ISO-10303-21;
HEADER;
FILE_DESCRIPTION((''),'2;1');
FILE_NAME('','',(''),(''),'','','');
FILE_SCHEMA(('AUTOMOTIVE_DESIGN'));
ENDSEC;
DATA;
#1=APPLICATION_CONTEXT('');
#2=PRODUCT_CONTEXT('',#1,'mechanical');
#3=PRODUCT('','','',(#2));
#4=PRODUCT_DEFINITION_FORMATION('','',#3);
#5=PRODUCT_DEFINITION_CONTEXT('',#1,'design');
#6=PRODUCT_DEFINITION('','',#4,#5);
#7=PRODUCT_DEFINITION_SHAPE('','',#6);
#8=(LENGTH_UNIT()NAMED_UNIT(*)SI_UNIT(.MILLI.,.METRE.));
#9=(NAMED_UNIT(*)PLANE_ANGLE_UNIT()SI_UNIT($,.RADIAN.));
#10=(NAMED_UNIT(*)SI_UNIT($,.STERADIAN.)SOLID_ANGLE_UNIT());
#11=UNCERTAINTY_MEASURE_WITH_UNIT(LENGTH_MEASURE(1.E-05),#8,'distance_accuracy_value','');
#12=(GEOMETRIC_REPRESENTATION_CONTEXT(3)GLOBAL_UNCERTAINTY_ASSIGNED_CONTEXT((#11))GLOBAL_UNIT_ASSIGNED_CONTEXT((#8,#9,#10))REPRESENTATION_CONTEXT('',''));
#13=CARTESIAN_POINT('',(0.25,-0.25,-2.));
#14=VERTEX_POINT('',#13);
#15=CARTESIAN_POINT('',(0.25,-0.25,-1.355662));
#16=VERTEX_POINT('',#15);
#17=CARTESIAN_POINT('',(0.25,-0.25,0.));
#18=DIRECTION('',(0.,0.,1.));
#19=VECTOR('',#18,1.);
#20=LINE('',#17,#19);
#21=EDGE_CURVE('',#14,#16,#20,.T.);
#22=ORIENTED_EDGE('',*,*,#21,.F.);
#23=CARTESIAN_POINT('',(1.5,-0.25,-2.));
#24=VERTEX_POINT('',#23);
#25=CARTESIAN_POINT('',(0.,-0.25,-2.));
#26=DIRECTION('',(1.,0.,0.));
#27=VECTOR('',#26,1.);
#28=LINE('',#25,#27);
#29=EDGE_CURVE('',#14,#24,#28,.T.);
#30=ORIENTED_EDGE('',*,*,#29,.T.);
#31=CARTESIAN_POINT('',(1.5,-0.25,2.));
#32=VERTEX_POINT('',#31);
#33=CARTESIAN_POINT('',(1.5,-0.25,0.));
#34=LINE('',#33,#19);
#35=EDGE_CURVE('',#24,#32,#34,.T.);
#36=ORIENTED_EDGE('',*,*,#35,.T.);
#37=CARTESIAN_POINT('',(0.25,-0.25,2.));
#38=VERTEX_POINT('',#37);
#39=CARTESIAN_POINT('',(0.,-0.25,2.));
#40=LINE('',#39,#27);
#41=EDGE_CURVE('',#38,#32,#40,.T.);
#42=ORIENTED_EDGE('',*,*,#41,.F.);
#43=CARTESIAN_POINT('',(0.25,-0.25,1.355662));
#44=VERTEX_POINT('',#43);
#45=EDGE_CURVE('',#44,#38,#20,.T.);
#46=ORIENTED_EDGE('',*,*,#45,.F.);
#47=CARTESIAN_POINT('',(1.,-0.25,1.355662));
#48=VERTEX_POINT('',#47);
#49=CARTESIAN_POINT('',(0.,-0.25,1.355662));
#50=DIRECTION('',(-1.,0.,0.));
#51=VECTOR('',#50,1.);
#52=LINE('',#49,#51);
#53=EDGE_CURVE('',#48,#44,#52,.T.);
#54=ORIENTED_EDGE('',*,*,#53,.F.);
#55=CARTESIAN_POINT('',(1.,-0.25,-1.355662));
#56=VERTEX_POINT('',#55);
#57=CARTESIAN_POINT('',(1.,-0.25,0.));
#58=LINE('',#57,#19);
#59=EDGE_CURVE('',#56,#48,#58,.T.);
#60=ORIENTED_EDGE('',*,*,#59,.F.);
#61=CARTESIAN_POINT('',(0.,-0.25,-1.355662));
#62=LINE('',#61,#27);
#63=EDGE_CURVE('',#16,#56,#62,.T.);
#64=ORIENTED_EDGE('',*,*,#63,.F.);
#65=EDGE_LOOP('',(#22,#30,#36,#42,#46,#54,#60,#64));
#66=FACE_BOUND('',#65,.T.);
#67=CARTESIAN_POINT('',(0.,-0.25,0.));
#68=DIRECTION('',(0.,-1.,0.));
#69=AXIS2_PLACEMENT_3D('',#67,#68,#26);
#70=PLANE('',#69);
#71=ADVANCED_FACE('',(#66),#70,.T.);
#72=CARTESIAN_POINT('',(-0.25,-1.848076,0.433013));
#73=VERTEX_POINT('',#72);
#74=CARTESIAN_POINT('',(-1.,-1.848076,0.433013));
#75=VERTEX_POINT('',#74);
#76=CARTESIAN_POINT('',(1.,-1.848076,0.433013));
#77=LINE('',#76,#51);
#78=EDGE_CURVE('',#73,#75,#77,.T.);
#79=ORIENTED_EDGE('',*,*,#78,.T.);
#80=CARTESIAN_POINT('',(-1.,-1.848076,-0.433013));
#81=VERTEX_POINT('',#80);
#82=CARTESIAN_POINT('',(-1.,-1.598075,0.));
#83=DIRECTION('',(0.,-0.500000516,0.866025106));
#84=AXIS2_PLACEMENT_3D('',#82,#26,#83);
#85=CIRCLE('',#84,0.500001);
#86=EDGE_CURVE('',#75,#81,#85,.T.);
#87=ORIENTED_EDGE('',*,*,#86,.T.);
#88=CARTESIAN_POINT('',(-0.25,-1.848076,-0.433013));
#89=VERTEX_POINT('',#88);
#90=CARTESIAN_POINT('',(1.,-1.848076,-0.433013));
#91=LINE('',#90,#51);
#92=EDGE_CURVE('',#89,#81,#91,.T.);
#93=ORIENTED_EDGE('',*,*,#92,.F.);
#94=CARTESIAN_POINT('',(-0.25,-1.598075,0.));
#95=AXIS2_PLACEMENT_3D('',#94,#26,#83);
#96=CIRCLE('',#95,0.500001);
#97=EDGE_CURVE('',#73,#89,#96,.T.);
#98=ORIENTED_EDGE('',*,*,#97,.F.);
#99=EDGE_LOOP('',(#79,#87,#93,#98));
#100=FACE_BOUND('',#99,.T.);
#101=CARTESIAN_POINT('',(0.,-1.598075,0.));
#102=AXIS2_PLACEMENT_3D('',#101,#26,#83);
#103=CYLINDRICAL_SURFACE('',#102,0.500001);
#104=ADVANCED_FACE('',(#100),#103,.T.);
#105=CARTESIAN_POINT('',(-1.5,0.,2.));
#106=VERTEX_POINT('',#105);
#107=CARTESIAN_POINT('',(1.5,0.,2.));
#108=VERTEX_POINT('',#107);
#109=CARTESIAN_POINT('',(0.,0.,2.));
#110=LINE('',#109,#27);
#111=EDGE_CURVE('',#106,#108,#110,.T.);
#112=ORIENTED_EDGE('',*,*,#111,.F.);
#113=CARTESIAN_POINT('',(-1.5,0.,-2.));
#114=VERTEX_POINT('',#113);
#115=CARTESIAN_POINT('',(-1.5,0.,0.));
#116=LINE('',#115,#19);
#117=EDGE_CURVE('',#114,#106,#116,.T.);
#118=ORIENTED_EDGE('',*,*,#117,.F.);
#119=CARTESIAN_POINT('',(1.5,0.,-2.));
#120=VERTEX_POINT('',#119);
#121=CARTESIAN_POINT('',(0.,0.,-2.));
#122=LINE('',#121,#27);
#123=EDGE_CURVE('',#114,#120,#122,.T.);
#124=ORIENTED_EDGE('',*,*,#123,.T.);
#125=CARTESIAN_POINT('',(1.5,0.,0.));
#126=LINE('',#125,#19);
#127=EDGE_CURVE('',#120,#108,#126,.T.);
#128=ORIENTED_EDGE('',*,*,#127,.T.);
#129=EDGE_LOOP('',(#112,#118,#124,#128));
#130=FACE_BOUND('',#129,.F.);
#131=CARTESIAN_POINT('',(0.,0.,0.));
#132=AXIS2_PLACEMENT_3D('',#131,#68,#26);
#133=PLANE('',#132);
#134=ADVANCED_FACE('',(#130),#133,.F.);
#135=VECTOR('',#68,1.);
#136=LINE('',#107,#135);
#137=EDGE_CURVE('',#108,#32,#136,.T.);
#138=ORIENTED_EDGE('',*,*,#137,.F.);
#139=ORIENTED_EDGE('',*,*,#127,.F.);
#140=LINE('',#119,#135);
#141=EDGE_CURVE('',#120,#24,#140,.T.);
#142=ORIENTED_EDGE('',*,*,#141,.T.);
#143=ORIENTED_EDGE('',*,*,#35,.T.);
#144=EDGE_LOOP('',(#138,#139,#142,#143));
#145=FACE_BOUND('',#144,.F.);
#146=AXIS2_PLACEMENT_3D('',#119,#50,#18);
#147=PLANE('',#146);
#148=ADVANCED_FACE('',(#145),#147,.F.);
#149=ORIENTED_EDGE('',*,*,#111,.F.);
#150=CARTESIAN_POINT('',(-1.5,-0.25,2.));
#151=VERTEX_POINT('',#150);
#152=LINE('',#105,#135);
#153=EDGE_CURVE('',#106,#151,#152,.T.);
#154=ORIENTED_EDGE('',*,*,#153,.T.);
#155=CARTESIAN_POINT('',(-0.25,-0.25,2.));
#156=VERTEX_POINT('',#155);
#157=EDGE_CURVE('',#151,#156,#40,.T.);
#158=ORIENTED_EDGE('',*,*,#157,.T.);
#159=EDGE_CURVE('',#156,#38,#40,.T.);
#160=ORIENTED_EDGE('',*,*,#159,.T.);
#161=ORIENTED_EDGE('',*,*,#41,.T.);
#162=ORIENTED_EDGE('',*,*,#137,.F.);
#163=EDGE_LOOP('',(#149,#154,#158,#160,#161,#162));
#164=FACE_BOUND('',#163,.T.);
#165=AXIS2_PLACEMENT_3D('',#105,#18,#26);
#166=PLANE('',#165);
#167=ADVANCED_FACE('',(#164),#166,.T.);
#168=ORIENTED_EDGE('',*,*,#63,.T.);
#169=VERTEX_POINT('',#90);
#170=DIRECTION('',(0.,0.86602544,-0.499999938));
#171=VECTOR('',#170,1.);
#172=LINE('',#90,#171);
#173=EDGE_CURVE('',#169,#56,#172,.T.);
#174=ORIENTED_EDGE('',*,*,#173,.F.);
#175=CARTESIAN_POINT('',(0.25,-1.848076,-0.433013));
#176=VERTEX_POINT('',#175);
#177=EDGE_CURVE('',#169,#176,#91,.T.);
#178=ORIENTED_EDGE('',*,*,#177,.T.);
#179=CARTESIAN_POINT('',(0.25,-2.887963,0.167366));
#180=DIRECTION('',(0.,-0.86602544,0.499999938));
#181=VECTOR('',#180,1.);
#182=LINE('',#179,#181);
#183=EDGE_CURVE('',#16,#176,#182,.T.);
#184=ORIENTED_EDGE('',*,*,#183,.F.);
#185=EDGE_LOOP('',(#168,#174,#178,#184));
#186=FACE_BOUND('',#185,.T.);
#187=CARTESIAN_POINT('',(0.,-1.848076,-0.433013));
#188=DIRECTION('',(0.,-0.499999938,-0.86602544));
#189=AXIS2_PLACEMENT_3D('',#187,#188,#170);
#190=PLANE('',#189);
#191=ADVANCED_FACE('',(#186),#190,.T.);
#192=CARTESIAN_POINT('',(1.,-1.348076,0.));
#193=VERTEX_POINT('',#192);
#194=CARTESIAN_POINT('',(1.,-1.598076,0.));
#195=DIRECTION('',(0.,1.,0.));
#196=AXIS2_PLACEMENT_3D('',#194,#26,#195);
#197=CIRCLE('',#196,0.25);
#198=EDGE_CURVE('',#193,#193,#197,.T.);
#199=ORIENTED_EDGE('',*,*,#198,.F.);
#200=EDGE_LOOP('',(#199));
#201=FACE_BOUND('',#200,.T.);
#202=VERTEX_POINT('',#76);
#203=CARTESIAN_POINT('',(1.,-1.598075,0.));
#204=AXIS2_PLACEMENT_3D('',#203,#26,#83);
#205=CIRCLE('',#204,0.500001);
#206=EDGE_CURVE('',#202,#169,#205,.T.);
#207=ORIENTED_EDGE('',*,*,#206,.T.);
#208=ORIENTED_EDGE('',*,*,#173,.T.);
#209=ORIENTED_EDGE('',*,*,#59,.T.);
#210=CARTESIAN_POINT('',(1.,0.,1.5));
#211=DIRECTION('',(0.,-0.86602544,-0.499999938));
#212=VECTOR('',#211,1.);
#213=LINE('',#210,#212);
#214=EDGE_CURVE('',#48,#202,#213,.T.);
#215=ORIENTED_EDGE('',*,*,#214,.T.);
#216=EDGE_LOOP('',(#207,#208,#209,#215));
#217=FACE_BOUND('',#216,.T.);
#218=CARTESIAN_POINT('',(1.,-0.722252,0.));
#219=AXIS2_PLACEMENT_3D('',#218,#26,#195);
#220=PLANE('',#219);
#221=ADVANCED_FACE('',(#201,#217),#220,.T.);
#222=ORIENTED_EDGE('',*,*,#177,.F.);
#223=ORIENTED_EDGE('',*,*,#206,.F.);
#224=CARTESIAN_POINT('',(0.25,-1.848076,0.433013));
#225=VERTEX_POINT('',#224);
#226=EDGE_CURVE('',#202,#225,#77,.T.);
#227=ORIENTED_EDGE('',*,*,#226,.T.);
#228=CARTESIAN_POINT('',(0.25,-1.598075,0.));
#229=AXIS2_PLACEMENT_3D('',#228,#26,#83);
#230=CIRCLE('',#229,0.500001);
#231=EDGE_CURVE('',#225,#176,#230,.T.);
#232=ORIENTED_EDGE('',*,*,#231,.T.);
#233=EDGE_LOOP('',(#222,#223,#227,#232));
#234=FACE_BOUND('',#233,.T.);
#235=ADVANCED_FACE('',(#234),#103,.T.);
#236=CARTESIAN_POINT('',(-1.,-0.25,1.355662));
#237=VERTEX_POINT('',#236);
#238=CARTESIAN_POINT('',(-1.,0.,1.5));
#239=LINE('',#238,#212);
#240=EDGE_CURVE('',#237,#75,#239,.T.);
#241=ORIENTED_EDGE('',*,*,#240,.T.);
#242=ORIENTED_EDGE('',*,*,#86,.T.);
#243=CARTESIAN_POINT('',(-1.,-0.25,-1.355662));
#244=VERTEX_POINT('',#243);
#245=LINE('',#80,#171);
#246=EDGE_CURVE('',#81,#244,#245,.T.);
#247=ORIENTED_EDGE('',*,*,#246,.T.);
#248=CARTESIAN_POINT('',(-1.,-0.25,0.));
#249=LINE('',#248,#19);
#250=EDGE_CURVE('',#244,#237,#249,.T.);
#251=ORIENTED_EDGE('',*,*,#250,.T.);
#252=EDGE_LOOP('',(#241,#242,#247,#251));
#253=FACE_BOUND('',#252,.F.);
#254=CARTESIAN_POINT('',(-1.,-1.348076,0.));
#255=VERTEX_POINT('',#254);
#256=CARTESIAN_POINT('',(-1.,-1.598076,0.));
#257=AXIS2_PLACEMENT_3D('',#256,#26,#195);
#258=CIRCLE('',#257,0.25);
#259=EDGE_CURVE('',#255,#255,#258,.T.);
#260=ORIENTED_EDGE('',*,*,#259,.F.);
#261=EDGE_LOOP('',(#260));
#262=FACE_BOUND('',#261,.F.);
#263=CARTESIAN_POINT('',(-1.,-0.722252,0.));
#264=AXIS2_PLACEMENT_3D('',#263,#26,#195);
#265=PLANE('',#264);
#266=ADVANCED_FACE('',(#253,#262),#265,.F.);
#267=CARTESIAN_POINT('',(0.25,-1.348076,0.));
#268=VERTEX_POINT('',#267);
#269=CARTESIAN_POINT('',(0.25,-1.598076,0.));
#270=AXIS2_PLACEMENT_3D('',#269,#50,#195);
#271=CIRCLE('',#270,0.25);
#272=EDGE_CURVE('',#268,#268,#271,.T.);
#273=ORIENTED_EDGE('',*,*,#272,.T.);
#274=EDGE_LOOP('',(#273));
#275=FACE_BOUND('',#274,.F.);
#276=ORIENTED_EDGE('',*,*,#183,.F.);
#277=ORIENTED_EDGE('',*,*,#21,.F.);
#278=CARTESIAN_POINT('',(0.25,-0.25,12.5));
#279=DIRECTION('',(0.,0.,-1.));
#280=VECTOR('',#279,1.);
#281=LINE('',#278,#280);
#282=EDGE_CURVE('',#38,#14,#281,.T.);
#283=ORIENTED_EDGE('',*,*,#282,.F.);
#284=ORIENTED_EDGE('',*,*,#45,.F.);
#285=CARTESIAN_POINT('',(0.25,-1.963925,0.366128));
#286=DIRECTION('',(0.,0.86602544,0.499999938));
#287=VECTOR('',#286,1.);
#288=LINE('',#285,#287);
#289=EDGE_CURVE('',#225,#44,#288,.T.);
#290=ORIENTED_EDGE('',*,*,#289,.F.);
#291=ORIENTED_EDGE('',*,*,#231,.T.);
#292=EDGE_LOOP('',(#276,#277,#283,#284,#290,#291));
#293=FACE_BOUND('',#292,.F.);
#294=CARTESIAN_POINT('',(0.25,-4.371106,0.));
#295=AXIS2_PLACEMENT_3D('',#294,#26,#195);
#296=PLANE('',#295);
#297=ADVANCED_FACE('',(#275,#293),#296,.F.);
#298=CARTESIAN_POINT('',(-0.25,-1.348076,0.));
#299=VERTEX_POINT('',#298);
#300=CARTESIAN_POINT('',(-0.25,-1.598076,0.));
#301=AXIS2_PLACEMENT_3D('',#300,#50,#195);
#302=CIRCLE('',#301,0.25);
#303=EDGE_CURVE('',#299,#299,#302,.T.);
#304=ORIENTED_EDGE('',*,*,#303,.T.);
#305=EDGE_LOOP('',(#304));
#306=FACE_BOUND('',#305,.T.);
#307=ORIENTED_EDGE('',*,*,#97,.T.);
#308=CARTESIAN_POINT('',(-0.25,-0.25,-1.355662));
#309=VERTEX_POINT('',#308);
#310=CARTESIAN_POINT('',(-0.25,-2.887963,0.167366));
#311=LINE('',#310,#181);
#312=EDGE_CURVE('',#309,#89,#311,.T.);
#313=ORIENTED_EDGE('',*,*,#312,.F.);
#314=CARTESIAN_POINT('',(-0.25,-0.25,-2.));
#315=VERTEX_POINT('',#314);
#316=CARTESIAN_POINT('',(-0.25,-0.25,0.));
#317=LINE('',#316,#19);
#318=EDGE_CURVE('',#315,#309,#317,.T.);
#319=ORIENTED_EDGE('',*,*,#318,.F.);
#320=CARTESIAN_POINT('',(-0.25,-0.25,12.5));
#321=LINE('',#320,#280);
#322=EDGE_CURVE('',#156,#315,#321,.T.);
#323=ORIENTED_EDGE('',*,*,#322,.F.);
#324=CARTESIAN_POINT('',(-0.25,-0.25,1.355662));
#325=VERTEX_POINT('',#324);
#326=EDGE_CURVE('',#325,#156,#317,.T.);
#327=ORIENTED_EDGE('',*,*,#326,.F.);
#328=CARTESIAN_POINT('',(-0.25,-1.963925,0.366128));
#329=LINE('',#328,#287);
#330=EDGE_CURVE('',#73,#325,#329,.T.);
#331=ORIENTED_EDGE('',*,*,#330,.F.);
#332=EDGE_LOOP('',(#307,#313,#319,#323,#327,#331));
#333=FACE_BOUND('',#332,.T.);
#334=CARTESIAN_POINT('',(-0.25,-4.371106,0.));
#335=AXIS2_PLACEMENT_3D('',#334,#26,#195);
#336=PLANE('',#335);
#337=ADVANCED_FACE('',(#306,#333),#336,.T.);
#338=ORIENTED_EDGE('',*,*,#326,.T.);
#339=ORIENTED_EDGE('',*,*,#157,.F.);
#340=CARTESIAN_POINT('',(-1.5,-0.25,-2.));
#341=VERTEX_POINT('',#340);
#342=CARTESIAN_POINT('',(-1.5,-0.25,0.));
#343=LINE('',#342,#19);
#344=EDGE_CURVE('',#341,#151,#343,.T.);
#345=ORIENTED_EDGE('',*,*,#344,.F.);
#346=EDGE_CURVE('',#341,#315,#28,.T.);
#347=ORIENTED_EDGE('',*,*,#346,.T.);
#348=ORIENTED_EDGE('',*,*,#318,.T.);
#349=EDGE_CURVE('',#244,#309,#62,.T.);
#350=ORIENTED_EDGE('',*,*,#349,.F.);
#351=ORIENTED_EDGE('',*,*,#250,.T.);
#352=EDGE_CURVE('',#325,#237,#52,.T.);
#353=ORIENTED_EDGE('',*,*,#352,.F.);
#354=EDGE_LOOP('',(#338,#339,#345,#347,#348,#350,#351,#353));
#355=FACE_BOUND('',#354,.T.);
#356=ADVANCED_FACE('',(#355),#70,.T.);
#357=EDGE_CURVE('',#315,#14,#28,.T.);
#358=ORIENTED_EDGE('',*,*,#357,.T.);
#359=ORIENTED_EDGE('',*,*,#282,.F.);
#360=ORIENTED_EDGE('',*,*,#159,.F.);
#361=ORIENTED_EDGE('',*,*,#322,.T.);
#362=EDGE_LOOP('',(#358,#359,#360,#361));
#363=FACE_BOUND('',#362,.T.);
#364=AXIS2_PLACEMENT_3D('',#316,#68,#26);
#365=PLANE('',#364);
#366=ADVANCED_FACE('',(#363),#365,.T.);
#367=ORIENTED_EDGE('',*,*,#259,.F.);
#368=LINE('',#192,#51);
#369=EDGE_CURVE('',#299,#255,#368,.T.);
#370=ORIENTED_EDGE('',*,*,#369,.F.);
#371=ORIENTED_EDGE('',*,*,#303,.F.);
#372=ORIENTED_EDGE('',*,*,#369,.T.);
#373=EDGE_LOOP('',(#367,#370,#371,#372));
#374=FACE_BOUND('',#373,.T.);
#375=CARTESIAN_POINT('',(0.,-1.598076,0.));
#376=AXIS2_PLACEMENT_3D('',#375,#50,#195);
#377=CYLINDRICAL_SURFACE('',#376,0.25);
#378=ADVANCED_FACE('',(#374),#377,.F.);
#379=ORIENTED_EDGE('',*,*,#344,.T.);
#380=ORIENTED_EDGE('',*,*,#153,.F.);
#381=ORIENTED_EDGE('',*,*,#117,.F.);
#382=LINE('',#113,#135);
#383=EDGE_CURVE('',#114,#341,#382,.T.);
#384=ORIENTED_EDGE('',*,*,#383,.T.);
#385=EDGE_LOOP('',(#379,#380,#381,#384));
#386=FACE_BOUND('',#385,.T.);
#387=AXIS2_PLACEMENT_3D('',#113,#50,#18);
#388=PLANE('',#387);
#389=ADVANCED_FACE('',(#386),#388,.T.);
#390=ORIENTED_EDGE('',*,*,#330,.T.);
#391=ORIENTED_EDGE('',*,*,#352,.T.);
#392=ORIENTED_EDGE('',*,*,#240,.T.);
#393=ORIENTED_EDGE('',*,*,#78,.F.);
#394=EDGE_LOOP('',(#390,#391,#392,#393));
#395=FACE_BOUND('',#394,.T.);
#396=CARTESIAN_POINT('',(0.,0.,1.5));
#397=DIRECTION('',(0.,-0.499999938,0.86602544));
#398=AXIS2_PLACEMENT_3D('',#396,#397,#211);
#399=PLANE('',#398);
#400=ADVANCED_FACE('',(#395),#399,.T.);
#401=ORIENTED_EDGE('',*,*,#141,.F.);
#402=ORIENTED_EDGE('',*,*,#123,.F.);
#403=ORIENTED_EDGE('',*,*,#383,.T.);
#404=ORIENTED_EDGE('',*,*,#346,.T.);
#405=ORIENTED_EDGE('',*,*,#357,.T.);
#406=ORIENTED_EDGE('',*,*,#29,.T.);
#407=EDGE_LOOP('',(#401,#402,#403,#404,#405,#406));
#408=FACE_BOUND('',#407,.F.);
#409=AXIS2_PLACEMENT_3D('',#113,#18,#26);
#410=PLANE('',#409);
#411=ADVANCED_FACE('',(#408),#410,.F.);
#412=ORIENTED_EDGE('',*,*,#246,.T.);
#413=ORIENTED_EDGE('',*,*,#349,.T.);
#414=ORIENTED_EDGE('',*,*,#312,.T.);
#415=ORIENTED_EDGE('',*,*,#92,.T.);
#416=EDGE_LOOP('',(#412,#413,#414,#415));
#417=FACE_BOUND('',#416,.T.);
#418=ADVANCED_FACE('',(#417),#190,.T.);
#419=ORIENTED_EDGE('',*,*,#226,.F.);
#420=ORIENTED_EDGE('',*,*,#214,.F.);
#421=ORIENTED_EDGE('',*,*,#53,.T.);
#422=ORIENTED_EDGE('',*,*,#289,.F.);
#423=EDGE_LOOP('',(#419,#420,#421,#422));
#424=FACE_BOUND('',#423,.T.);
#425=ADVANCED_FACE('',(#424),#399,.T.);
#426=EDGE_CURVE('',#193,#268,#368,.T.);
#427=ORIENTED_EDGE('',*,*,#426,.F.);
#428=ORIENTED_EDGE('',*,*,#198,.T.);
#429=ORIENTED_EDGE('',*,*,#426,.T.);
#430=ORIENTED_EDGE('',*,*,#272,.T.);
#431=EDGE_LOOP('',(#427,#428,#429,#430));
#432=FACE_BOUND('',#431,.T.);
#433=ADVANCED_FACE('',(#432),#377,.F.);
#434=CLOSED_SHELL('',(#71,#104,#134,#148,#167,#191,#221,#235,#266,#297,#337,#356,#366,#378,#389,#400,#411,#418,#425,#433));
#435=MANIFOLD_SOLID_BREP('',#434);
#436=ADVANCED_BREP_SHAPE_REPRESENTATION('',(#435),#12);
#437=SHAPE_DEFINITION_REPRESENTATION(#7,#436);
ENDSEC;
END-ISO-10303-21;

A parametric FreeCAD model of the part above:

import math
import FreeCAD as App
import Part
import Sketcher

V = App.Vector
Q = App.Units.Quantity

doc = App.newDocument("Part")
params = doc.addObject("Spreadsheet::Sheet", "Params")
for row, (alias, value) in enumerate([
    ("sketch1_width", "3 mm"),
    ("sketch1_height", "4 mm"),
    ("pad1_length", "0.25 mm"),
    ("sketch2_diameter", "0.5 mm"),
    ("sketch2_radius", "0.500001 mm"),
    ("sketch2_height", "3 mm"),
    ("pad2_length", "2 mm"),
    ("sketch3_width", "0.5 mm"),
    ("pocket1_length", "25 mm"),
], start=1):
    params.set(f"A{row}", alias)
    params.set(f"B{row}", "=" + value)
    params.setAlias(f"B{row}", alias)

body = doc.addObject("PartDesign::Body", "Body")

sketch1 = body.newObject("Sketcher::SketchObject", "Sketch")
sketch1.AttachmentSupport = (doc.getObject("XZ_Plane"), [""])
sketch1.MapMode = "FlatFace"
sketch1.addGeometry(Part.LineSegment(V(-1.5, 2, 0), V(-1.5, -2, 0)), False)
sketch1.addGeometry(Part.LineSegment(V(-1.5, -2, 0), V(1.5, -2, 0)), False)
sketch1.addGeometry(Part.LineSegment(V(1.5, -2, 0), V(1.5, 2, 0)), False)
sketch1.addGeometry(Part.LineSegment(V(1.5, 2, 0), V(-1.5, 2, 0)), False)
sketch1.addConstraint(Sketcher.Constraint("Coincident", 0, 2, 1, 1))
sketch1.addConstraint(Sketcher.Constraint("Coincident", 1, 2, 2, 1))
sketch1.addConstraint(Sketcher.Constraint("Coincident", 2, 2, 3, 1))
sketch1.addConstraint(Sketcher.Constraint("Coincident", 3, 2, 0, 1))
sketch1.addConstraint(Sketcher.Constraint("Vertical", 0))
sketch1.addConstraint(Sketcher.Constraint("Horizontal", 1))
sketch1.addConstraint(Sketcher.Constraint("Vertical", 2))
sketch1.addConstraint(Sketcher.Constraint("Horizontal", 3))
sketch1.addConstraint(Sketcher.Constraint("Symmetric", 0, 2, 2, 2, -1, 1))
sketch1.addConstraint(Sketcher.Constraint("DistanceX", 1, 1, 1, 2, Q("3 mm")))
sketch1.addConstraint(Sketcher.Constraint("DistanceY", 0, 2, 0, 1, Q("4 mm")))
sketch1.setExpression("Constraints[9]", "Params.sketch1_width")
sketch1.setExpression("Constraints[10]", "Params.sketch1_height")
pad1 = body.newObject("PartDesign::Pad", "Pad")
pad1.Profile = sketch1
pad1.setExpression("Length", "Params.pad1_length")

sketch2 = body.newObject("Sketcher::SketchObject", "Sketch001")
sketch2.AttachmentSupport = (doc.getObject("YZ_Plane"), [""])
sketch2.MapMode = "FlatFace"
sketch2.addGeometry(Part.LineSegment(V(-1.848076, -0.433013, 0), V(0, -1.5, 0)), False)
sketch2.addGeometry(Part.LineSegment(V(0, -1.5, 0), V(0, 1.5, 0)), False)
sketch2.addGeometry(Part.LineSegment(V(0, 1.5, 0), V(-1.848076, 0.433013, 0)), False)
sketch2.addGeometry(Part.ArcOfCircle(Part.Circle(V(-1.598075, 0, 0), V(0, 0, 1), 0.500001), math.radians(120.000034), math.radians(239.999966)), False)
sketch2.addGeometry(Part.Circle(V(-1.598076, 0, 0), V(0, 0, 1), 0.25), False)
sketch2.addConstraint(Sketcher.Constraint("Coincident", 0, 2, 1, 1))
sketch2.addConstraint(Sketcher.Constraint("Coincident", 1, 2, 2, 1))
sketch2.addConstraint(Sketcher.Constraint("Tangent", 2, 2, 3, 1))
sketch2.addConstraint(Sketcher.Constraint("Tangent", 3, 2, 0, 1))
sketch2.addConstraint(Sketcher.Constraint("Vertical", 1))
sketch2.addConstraint(Sketcher.Constraint("Coincident", 4, 3, 3, 3))
sketch2.addConstraint(Sketcher.Constraint("Symmetric", 0, 2, 1, 2, -1, 1))
sketch2.addConstraint(Sketcher.Constraint("PointOnObject", 3, 3, -1))
sketch2.addConstraint(Sketcher.Constraint("Diameter", 4, Q("0.5 mm")))
sketch2.addConstraint(Sketcher.Constraint("Radius", 3, Q("0.500001 mm")))
sketch2.addConstraint(Sketcher.Constraint("DistanceY", 1, 1, 1, 2, Q("3 mm")))
sketch2.addConstraint(Sketcher.Constraint("Angle", 0, Q("-29.999996 deg")))
sketch2.setExpression("Constraints[8]", "Params.sketch2_diameter")
sketch2.setExpression("Constraints[9]", "Params.sketch2_radius")
sketch2.setExpression("Constraints[10]", "Params.sketch2_height")
pad2 = body.newObject("PartDesign::Pad", "Pad001")
pad2.Profile = sketch2
pad2.setExpression("Length", "Params.pad2_length")
pad2.Midplane = True

sketch3 = body.newObject("Sketcher::SketchObject", "Sketch002")
sketch3.AttachmentSupport = (doc.getObject("XY_Plane"), [""])
sketch3.MapMode = "FlatFace"
sketch3.addGeometry(Part.LineSegment(V(-0.25, -0.25, 0), V(-0.25, -4.371106, 0)), False)
sketch3.addGeometry(Part.LineSegment(V(-0.25, -4.371106, 0), V(0.25, -4.371106, 0)), False)
sketch3.addGeometry(Part.LineSegment(V(0.25, -4.371106, 0), V(0.25, -0.25, 0)), False)
sketch3.addGeometry(Part.LineSegment(V(0.25, -0.25, 0), V(-0.25, -0.25, 0)), False)
sketch3.addConstraint(Sketcher.Constraint("Coincident", 0, 2, 1, 1))
sketch3.addConstraint(Sketcher.Constraint("Coincident", 1, 2, 2, 1))
sketch3.addConstraint(Sketcher.Constraint("Coincident", 2, 2, 3, 1))
sketch3.addConstraint(Sketcher.Constraint("Coincident", 3, 2, 0, 1))
sketch3.addConstraint(Sketcher.Constraint("Vertical", 0))
sketch3.addConstraint(Sketcher.Constraint("Horizontal", 1))
sketch3.addConstraint(Sketcher.Constraint("Vertical", 2))
sketch3.addConstraint(Sketcher.Constraint("Horizontal", 3))
sketch3.addConstraint(Sketcher.Constraint("DistanceX", 1, 1, 1, 2, Q("0.5 mm")))
sketch3.addConstraint(Sketcher.Constraint("DistanceX", 0, 2, -1, 1, Q("0.25 mm")))
sketch3.addConstraint(Sketcher.Constraint("DistanceY", 2, 2, -1, 1, Q("0.25 mm")))
sketch3.addConstraint(Sketcher.Constraint("DistanceY", 0, 2, 0, 1, Q("4.121107 mm")))
sketch3.setExpression("Constraints[8]", "Params.sketch3_width")
pocket1 = body.newObject("PartDesign::Pocket", "Pocket")
pocket1.Profile = sketch3
pocket1.setExpression("Length", "Params.pocket1_length")
pocket1.Midplane = True

doc.recompute()
